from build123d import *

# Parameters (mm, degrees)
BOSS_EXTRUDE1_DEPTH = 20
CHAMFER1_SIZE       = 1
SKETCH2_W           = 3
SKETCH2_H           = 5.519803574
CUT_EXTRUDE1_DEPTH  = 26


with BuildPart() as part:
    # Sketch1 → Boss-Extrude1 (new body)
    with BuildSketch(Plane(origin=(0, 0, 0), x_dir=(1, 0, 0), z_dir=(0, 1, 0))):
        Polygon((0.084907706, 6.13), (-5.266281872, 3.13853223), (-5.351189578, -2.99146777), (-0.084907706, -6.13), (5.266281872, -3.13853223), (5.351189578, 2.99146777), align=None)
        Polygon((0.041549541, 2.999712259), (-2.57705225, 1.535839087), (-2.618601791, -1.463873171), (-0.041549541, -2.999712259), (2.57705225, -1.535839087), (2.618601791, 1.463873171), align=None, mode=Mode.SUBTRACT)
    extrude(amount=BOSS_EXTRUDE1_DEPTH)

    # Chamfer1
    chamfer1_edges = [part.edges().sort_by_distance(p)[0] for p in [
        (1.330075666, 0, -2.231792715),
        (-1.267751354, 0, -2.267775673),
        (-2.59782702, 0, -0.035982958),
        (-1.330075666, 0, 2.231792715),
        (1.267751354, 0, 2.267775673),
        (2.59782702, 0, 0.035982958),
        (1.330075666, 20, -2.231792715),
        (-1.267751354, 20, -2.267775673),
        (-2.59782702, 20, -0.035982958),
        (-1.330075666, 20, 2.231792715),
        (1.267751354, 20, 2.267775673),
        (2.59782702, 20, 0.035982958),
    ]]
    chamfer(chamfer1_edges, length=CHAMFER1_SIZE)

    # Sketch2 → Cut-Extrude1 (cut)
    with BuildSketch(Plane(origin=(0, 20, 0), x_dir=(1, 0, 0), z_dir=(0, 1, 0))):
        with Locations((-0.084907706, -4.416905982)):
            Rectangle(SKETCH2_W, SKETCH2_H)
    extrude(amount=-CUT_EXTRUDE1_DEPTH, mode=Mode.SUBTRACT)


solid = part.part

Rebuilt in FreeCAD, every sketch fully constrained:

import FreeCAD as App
import Part
import Sketcher
from FreeCAD import Vector
Q = App.Units.Quantity


def edges_at(feature, points):
    """Names of the edges that pass closest to the given points."""
    edges = feature.Shape.Edges
    near = lambda p: min(range(len(edges)), key=lambda i: edges[i].distToShape(Part.Vertex(*p))[0])
    return sorted({f"Edge{near(p) + 1}" for p in points})


def add_polygon(sketch, points):
    """Adds a closed chain of lines whose ends are joined by coincident constraints."""
    first, n = sketch.GeometryCount, len(points)
    for a, b in zip(points, points[1:] + points[:1]):
        sketch.addGeometry(Part.LineSegment(App.Vector(*a, 0), App.Vector(*b, 0)), False)
    for i in range(n):
        sketch.addConstraint(Sketcher.Constraint("Coincident", first + i, 2, first + (i + 1) % n, 1))

doc = App.newDocument("Part")
body = doc.addObject("PartDesign::Body", "Body")

sketch1 = body.newObject("Sketcher::SketchObject", "Sketch")
sketch1.AttachmentSupport = (doc.getObject("XZ_Plane"), [""])
sketch1.MapMode = "FlatFace"
add_polygon(sketch1, [(0.1, -6.1), (-5.3, -3.1), (-5.4, 3), (-0.1, 6.1), (5.3, 3.1), (5.4, -3)])
add_polygon(sketch1, [(-2.6, -1.5), (0, -3), (2.6, -1.5), (2.6, 1.5), (0, 3), (-2.6, 1.5)])
sketch1.addConstraint([
    Sketcher.Constraint("Symmetric", 0, 2, 3, 2, -1, 1),
    Sketcher.Constraint("Symmetric", 1, 2, 4, 2, -1, 1),
    Sketcher.Constraint("Symmetric", 2, 2, 5, 2, -1, 1),
    Sketcher.Constraint("Symmetric", 6, 2, 9, 2, -1, 1),
    Sketcher.Constraint("Symmetric", 7, 2, 10, 2, -1, 1),
    Sketcher.Constraint("Symmetric", 8, 2, 11, 2, -1, 1),
    Sketcher.Constraint("Parallel", 3, 6),
    Sketcher.Constraint("Parallel", 5, 7),
    Sketcher.Constraint("Parallel", 4, 8),
    Sketcher.Constraint("Equal", 0, 1),
    Sketcher.Constraint("Equal", 1, 2),
    Sketcher.Constraint("Equal", 6, 7),
    Sketcher.Constraint("Equal", 7, 8),
    Sketcher.Constraint("Distance", 6, Q("3 mm")),
    Sketcher.Constraint("DistanceY", -1, 1, 2, 2, Q("6.13 mm")),
    Sketcher.Constraint("DistanceY", 0, 2, 1, 2, Q("6.13 mm")),
    Sketcher.Constraint("DistanceX", -1, 1, 7, 2, Q("2.618602 mm")),
    Sketcher.Constraint("DistanceX", 9, 2, 8, 2, Q("2.618602 mm")),
])
pad1 = body.newObject("PartDesign::Pad", "Pad")
pad1.Profile = sketch1
pad1.Length = 20
pad1.Reversed = True
doc.recompute()

chamfer = body.newObject("PartDesign::Chamfer", "Chamfer")
chamfer.Base = (pad1, edges_at(pad1, [
    (1.33, 0, -2.232),
    (-1.268, 0, -2.268),
    (-2.598, 0, -0.036),
    (-1.33, 0, 2.232),
    (1.268, 0, 2.268),
    (2.598, 0, 0.036),
    (1.33, 20, -2.232),
    (-1.268, 20, -2.268),
    (-2.598, 20, -0.036),
    (-1.33, 20, 2.232),
    (1.268, 20, 2.268),
    (2.598, 20, 0.036),
]))
chamfer.Size = 1

sketch2 = body.newObject("Sketcher::SketchObject", "Sketch001")
sketch2.AttachmentSupport = (doc.getObject("XZ_Plane"), [""])
sketch2.MapMode = "FlatFace"
sketch2.AttachmentOffset = App.Placement(Vector(0, 0, -20), App.Rotation())
add_polygon(sketch2, [(-1.6, 1.7), (-1.6, 7.2), (1.4, 7.2), (1.4, 1.7)])
sketch2.addConstraint([
    Sketcher.Constraint("Vertical", 0),
    Sketcher.Constraint("Horizontal", 1),
    Sketcher.Constraint("Vertical", 2),
    Sketcher.Constraint("Horizontal", 3),
    Sketcher.Constraint("DistanceX", 1, 1, 1, 2, Q("3 mm")),
    Sketcher.Constraint("DistanceY", 0, 1, 0, 2, Q("5.519804 mm")),
    Sketcher.Constraint("DistanceX", 0, 2, -1, 1, Q("1.584908 mm")),
    Sketcher.Constraint("DistanceY", -1, 1, 0, 2, Q("7.176808 mm")),
])
pocket1 = body.newObject("PartDesign::Pocket", "Pocket")
pocket1.Profile = sketch2
pocket1.Length = 26
pocket1.Reversed = True

doc.recompute()
